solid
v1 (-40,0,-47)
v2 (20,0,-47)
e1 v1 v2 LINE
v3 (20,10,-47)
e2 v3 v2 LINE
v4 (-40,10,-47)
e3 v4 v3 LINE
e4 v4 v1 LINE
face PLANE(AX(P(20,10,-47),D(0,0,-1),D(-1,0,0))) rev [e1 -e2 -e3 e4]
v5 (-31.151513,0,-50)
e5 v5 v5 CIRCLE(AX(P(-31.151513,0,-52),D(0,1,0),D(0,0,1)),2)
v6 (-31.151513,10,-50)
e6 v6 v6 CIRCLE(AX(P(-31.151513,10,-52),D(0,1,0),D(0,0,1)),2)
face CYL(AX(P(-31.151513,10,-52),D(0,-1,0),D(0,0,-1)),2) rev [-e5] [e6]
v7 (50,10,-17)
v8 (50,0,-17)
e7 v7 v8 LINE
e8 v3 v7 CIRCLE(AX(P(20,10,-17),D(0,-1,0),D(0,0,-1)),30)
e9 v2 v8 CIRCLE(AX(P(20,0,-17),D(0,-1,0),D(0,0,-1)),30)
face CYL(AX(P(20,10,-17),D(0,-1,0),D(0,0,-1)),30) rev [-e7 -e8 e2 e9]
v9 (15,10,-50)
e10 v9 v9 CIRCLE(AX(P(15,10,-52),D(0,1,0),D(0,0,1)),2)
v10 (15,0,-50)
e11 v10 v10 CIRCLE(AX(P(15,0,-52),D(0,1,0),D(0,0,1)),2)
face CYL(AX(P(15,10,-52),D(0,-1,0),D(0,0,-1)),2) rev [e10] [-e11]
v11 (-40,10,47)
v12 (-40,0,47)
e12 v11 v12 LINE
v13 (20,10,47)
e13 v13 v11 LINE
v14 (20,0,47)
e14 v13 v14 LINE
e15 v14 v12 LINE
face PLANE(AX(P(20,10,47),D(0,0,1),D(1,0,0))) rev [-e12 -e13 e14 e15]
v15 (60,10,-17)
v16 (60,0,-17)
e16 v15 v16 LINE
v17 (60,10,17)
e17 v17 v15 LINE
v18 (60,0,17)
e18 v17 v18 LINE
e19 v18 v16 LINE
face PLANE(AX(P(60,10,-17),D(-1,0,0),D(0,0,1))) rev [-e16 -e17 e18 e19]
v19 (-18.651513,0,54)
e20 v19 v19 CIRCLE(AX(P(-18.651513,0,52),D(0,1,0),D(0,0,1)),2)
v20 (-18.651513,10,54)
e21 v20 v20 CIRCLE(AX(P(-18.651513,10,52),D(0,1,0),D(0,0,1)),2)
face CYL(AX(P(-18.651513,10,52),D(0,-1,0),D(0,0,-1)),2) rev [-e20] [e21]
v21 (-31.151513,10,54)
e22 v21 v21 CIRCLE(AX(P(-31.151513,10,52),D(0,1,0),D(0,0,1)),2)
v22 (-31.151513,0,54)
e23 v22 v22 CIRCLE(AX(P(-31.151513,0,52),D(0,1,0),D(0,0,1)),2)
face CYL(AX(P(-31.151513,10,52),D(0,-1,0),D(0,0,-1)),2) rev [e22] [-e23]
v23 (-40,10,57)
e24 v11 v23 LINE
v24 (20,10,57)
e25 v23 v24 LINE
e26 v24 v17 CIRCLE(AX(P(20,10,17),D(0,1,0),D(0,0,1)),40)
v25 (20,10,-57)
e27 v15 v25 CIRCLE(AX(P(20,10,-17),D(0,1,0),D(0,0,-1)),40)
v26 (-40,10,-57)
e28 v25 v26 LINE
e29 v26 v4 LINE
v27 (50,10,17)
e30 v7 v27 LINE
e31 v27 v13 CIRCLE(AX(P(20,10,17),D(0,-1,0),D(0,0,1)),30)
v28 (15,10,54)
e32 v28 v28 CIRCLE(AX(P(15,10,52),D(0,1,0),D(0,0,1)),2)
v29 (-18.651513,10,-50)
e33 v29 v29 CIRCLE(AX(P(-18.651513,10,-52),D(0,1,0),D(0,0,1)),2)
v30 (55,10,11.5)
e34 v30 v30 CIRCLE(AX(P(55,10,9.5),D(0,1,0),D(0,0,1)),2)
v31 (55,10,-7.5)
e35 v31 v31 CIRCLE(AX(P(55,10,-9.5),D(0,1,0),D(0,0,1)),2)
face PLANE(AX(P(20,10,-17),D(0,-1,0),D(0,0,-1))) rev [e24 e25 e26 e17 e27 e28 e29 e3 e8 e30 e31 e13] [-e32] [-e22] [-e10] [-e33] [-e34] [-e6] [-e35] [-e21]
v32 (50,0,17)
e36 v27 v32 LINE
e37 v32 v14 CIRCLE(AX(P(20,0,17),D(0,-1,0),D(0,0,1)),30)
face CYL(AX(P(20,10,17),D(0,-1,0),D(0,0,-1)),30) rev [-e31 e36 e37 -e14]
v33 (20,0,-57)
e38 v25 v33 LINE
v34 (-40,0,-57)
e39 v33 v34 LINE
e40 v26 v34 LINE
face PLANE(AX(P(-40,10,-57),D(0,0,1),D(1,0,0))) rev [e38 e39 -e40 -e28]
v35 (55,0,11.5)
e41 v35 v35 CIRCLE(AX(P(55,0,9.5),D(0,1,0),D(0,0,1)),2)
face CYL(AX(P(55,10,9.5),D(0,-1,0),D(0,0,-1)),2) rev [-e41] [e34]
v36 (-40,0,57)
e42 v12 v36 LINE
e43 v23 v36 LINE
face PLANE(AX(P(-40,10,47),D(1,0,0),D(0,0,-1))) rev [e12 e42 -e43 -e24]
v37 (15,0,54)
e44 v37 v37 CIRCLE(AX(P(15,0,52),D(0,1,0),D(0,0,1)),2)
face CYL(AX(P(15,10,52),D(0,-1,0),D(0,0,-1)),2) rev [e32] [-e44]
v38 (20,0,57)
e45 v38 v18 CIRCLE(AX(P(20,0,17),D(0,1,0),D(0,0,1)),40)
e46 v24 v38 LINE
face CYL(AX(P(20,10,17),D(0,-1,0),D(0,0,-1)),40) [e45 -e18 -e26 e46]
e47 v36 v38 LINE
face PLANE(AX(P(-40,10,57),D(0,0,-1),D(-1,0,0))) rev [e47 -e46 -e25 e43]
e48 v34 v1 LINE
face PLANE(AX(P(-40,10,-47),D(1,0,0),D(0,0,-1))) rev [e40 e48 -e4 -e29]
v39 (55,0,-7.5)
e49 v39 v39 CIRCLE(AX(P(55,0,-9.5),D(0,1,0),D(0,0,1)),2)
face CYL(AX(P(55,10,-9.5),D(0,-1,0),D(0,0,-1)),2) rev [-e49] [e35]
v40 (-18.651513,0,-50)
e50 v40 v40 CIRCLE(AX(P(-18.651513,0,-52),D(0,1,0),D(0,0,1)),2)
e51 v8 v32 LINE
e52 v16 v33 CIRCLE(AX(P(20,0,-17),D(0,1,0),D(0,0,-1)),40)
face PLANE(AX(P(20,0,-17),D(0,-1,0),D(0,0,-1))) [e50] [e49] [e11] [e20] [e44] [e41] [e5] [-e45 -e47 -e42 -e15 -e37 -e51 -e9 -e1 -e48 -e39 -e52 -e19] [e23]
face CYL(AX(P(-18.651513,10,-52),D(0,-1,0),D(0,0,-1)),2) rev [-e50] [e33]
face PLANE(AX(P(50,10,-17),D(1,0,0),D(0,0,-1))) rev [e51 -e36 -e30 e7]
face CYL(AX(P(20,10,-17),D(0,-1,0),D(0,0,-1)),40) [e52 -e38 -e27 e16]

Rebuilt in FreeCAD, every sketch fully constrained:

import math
import FreeCAD as App
import Part
import Sketcher
from FreeCAD import Vector

doc = App.newDocument("Part")
body = doc.addObject("PartDesign::Body", "Body")

# Sketch on XZ plane
sketch1 = body.newObject("Sketcher::SketchObject", "Sketch")
sketch1.AttachmentSupport = (doc.getObject("XZ_Plane"), [""])
sketch1.MapMode = "FlatFace"
sketch1.addGeometry(Part.LineSegment(Vector(20, 47, 0), Vector(-40, 47, 0)), False)
sketch1.addGeometry(Part.LineSegment(Vector(-40, 47, 0), Vector(-40, 57, 0)), False)
sketch1.addGeometry(Part.LineSegment(Vector(-40, 57, 0), Vector(20, 57, 0)), False)
sketch1.addGeometry(Part.ArcOfCircle(Part.Circle(Vector(20, 17, 0), Vector(0, 0, 1), 40), math.radians(0), math.radians(90)), False)
sketch1.addGeometry(Part.LineSegment(Vector(60, 17, 0), Vector(60, -17, 0)), False)
sketch1.addGeometry(Part.ArcOfCircle(Part.Circle(Vector(20, -17, 0), Vector(0, 0, 1), 40), math.radians(-90), math.radians(0)), False)
sketch1.addGeometry(Part.LineSegment(Vector(20, -57, 0), Vector(-40, -57, 0)), False)
sketch1.addGeometry(Part.LineSegment(Vector(-40, -57, 0), Vector(-40, -47, 0)), False)
sketch1.addGeometry(Part.LineSegment(Vector(-40, -47, 0), Vector(20, -47, 0)), False)
sketch1.addGeometry(Part.ArcOfCircle(Part.Circle(Vector(20, -17, 0), Vector(0, 0, 1), 30), math.radians(-90), math.radians(0)), False)
sketch1.addGeometry(Part.LineSegment(Vector(50, -17, 0), Vector(50, 17, 0)), False)
sketch1.addGeometry(Part.ArcOfCircle(Part.Circle(Vector(20, 17, 0), Vector(0, 0, 1), 30), math.radians(0), math.radians(90)), False)
sketch1.addGeometry(Part.Circle(Vector(-31.2, 52, 0), Vector(0, 0, 1), 2), False)
sketch1.addGeometry(Part.Circle(Vector(-18.7, 52, 0), Vector(0, 0, 1), 2), False)
sketch1.addGeometry(Part.Circle(Vector(15, 52, 0), Vector(0, 0, 1), 2), False)
sketch1.addGeometry(Part.Circle(Vector(55, 9.5, 0), Vector(0, 0, 1), 2), False)
sketch1.addGeometry(Part.Circle(Vector(-31.2, -52, 0), Vector(0, 0, 1), 2), False)
sketch1.addGeometry(Part.Circle(Vector(-18.7, -52, 0), Vector(0, 0, 1), 2), False)
sketch1.addGeometry(Part.Circle(Vector(55, -9.5, 0), Vector(0, 0, 1), 2), False)
sketch1.addGeometry(Part.Circle(Vector(15, -52, 0), Vector(0, 0, 1), 2), False)
sketch1.addConstraint(Sketcher.Constraint("Coincident", 0, 2, 1, 1))
sketch1.addConstraint(Sketcher.Constraint("Coincident", 1, 2, 2, 1))
sketch1.addConstraint(Sketcher.Constraint("Tangent", 2, 2, 3, 2))
sketch1.addConstraint(Sketcher.Constraint("Tangent", 3, 1, 4, 1))
sketch1.addConstraint(Sketcher.Constraint("Tangent", 4, 2, 5, 2))
sketch1.addConstraint(Sketcher.Constraint("Tangent", 5, 1, 6, 1))
sketch1.addConstraint(Sketcher.Constraint("Coincident", 6, 2, 7, 1))
sketch1.addConstraint(Sketcher.Constraint("Coincident", 7, 2, 8, 1))
sketch1.addConstraint(Sketcher.Constraint("Tangent", 8, 2, 9, 1))
sketch1.addConstraint(Sketcher.Constraint("Tangent", 9, 2, 10, 1))
sketch1.addConstraint(Sketcher.Constraint("Tangent", 10, 2, 11, 1))
sketch1.addConstraint(Sketcher.Constraint("Tangent", 11, 2, 0, 1))
sketch1.addConstraint(Sketcher.Constraint("Horizontal", 0))
sketch1.addConstraint(Sketcher.Constraint("Vertical", 1))
sketch1.addConstraint(Sketcher.Constraint("Horizontal", 2))
sketch1.addConstraint(Sketcher.Constraint("Vertical", 4))
sketch1.addConstraint(Sketcher.Constraint("Horizontal", 6))
sketch1.addConstraint(Sketcher.Constraint("Vertical", 7))
sketch1.addConstraint(Sketcher.Constraint("Horizontal", 8))
sketch1.addConstraint(Sketcher.Constraint("Vertical", 10))
sketch1.addConstraint(Sketcher.Constraint("Coincident", 9, 3, 5, 3))
sketch1.addConstraint(Sketcher.Constraint("Coincident", 11, 3, 3, 3))
sketch1.addConstraint(Sketcher.Constraint("Equal", 3, 5))
sketch1.addConstraint(Sketcher.Constraint("Equal", 12, 13))
sketch1.addConstraint(Sketcher.Constraint("Equal", 13, 14))
sketch1.addConstraint(Sketcher.Constraint("Equal", 14, 15))
sketch1.addConstraint(Sketcher.Constraint("Equal", 15, 16))
sketch1.addConstraint(Sketcher.Constraint("Equal", 16, 17))
sketch1.addConstraint(Sketcher.Constraint("Equal", 17, 18))
sketch1.addConstraint(Sketcher.Constraint("Equal", 18, 19))
sketch1.addConstraint(Sketcher.Constraint("Symmetric", 12, 3, 16, 3, -1))
sketch1.addConstraint(Sketcher.Constraint("Symmetric", 13, 3, 17, 3, -1))
sketch1.addConstraint(Sketcher.Constraint("Symmetric", 15, 3, 18, 3, -1))
sketch1.addConstraint(Sketcher.Constraint("Symmetric", 14, 3, 19, 3, -1))
sketch1.addConstraint(Sketcher.Constraint("Symmetric", 1, 2, 6, 2, -1))
sketch1.addConstraint(Sketcher.Constraint("Horizontal", 12, 3, 13, 3))
sketch1.addConstraint(Sketcher.Constraint("Horizontal", 13, 3, 14, 3))
sketch1.addConstraint(Sketcher.Constraint("Diameter", 12, 4.0))
sketch1.addConstraint(Sketcher.Constraint("Radius", 3, 40.0))
sketch1.addConstraint(Sketcher.Constraint("Radius", 9, 30.0))
sketch1.addConstraint(Sketcher.Constraint("DistanceX", 0, 2, 0, 1, 60.0))
sketch1.addConstraint(Sketcher.Constraint("DistanceY", 4, 2, 4, 1, 34.0))
sketch1.addConstraint(Sketcher.Constraint("DistanceX", -1, 1, 3, 3, 20.0))
sketch1.addConstraint(Sketcher.Constraint("DistanceY", -1, 1, 12, 3, 52.0))
sketch1.addConstraint(Sketcher.Constraint("DistanceX", -1, 1, 14, 3, 15.0))
sketch1.addConstraint(Sketcher.Constraint("DistanceX", -1, 1, 15, 3, 55.0))
sketch1.addConstraint(Sketcher.Constraint("DistanceY", 18, 3, 15, 3, 19.0))
sketch1.addConstraint(Sketcher.Constraint("DistanceX", 12, 3, 13, 3, 12.5))
sketch1.addConstraint(Sketcher.Constraint("DistanceX", 12, 3, -1, 1, 31.151513))
pad1 = body.newObject("PartDesign::Pad", "Pad")
pad1.Profile = sketch1
pad1.Length = 10
pad1.Reversed = True

doc.recompute()
